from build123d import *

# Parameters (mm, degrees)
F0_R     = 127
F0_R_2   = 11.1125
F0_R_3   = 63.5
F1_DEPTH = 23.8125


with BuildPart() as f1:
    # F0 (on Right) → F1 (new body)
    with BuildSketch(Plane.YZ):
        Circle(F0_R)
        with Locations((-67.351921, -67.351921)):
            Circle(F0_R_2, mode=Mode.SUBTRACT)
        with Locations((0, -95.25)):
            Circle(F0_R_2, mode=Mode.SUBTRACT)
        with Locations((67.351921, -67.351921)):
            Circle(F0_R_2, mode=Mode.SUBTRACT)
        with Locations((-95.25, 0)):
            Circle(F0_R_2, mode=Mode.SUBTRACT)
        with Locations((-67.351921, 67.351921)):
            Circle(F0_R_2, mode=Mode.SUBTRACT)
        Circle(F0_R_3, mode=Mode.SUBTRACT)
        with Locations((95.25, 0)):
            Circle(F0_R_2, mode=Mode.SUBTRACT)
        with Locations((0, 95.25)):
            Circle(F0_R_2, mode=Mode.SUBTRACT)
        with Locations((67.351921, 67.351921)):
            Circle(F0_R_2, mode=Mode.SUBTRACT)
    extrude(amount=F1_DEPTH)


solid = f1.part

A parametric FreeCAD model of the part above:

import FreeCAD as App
import Part
import Sketcher
from FreeCAD import Vector
Q = App.Units.Quantity

doc = App.newDocument("Part")
body = doc.addObject("PartDesign::Body", "Body")

# Sketch on YZ plane
sketch1 = doc.addObject("Sketcher::SketchObject", "Sketch")
body.addObject(sketch1)
sketch1.AttachmentSupport = (doc.YZ_Plane, [""])
sketch1.MapMode = "FlatFace"
sketch1.addGeometry([
    Part.Circle(Vector(0, 0, 0), Vector(0, 0, 1), 127),  # 0
    Part.Circle(Vector(-67, -67, 0), Vector(0, 0, 1), 11),  # 1
    Part.Circle(Vector(0, -95, 0), Vector(0, 0, 1), 11),  # 2
    Part.Circle(Vector(67, -67, 0), Vector(0, 0, 1), 11),  # 3
    Part.Circle(Vector(0, 0, 0), Vector(0, 0, 1), 64),  # 4
    Part.Circle(Vector(-95, 0, 0), Vector(0, 0, 1), 11),  # 5
    Part.Circle(Vector(-67, 67, 0), Vector(0, 0, 1), 11),  # 6
    Part.Circle(Vector(95, 0, 0), Vector(0, 0, 1), 11),  # 7
    Part.Circle(Vector(0, 95, 0), Vector(0, 0, 1), 11),  # 8
    Part.Circle(Vector(67, 67, 0), Vector(0, 0, 1), 11),  # 9
], False)
sketch1.addConstraint([
    Sketcher.Constraint("Coincident", 0, 3, -1, 1),
    Sketcher.Constraint("Coincident", 4, 3, -1, 1),
    Sketcher.Constraint("Equal", 1, 2),
    Sketcher.Constraint("Equal", 2, 3),
    Sketcher.Constraint("Equal", 3, 5),
    Sketcher.Constraint("Equal", 5, 6),
    Sketcher.Constraint("Equal", 6, 7),
    Sketcher.Constraint("Equal", 7, 8),
    Sketcher.Constraint("Equal", 8, 9),
    Sketcher.Constraint("Symmetric", 3, 3, 6, 3, -1, 1),
    Sketcher.Constraint("Symmetric", 5, 3, 7, 3, -1, 1),
    Sketcher.Constraint("Symmetric", 2, 3, 8, 3, -1, 1),
    Sketcher.Constraint("Symmetric", 1, 3, 9, 3, -1, 1),
    Sketcher.Constraint("Symmetric", 1, 3, 3, 3, -2),
    Sketcher.Constraint("PointOnObject", 2, 3, -2),
    Sketcher.Constraint("PointOnObject", 5, 3, -1),
    Sketcher.Constraint("Diameter", 0, Q("10 in")),
    Sketcher.Constraint("Diameter", 4, Q("5 in")),
    Sketcher.Constraint("Diameter", 1, Q("0.875 in")),
    Sketcher.Constraint("DistanceY", 2, 3, -1, 1, Q("3.75 in")),
    Sketcher.Constraint("DistanceX", 5, 3, -1, 1, Q("3.75 in")),
    Sketcher.Constraint("DistanceX", 1, 3, -1, 1, 67.351921),
    Sketcher.Constraint("DistanceY", 1, 3, -1, 1, 67.351921),
])
pad1 = doc.addObject("PartDesign::Pad", "Pad")
body.addObject(pad1)
pad1.Profile = sketch1
pad1.Length = Q("0.9375 in")

doc.recompute()
